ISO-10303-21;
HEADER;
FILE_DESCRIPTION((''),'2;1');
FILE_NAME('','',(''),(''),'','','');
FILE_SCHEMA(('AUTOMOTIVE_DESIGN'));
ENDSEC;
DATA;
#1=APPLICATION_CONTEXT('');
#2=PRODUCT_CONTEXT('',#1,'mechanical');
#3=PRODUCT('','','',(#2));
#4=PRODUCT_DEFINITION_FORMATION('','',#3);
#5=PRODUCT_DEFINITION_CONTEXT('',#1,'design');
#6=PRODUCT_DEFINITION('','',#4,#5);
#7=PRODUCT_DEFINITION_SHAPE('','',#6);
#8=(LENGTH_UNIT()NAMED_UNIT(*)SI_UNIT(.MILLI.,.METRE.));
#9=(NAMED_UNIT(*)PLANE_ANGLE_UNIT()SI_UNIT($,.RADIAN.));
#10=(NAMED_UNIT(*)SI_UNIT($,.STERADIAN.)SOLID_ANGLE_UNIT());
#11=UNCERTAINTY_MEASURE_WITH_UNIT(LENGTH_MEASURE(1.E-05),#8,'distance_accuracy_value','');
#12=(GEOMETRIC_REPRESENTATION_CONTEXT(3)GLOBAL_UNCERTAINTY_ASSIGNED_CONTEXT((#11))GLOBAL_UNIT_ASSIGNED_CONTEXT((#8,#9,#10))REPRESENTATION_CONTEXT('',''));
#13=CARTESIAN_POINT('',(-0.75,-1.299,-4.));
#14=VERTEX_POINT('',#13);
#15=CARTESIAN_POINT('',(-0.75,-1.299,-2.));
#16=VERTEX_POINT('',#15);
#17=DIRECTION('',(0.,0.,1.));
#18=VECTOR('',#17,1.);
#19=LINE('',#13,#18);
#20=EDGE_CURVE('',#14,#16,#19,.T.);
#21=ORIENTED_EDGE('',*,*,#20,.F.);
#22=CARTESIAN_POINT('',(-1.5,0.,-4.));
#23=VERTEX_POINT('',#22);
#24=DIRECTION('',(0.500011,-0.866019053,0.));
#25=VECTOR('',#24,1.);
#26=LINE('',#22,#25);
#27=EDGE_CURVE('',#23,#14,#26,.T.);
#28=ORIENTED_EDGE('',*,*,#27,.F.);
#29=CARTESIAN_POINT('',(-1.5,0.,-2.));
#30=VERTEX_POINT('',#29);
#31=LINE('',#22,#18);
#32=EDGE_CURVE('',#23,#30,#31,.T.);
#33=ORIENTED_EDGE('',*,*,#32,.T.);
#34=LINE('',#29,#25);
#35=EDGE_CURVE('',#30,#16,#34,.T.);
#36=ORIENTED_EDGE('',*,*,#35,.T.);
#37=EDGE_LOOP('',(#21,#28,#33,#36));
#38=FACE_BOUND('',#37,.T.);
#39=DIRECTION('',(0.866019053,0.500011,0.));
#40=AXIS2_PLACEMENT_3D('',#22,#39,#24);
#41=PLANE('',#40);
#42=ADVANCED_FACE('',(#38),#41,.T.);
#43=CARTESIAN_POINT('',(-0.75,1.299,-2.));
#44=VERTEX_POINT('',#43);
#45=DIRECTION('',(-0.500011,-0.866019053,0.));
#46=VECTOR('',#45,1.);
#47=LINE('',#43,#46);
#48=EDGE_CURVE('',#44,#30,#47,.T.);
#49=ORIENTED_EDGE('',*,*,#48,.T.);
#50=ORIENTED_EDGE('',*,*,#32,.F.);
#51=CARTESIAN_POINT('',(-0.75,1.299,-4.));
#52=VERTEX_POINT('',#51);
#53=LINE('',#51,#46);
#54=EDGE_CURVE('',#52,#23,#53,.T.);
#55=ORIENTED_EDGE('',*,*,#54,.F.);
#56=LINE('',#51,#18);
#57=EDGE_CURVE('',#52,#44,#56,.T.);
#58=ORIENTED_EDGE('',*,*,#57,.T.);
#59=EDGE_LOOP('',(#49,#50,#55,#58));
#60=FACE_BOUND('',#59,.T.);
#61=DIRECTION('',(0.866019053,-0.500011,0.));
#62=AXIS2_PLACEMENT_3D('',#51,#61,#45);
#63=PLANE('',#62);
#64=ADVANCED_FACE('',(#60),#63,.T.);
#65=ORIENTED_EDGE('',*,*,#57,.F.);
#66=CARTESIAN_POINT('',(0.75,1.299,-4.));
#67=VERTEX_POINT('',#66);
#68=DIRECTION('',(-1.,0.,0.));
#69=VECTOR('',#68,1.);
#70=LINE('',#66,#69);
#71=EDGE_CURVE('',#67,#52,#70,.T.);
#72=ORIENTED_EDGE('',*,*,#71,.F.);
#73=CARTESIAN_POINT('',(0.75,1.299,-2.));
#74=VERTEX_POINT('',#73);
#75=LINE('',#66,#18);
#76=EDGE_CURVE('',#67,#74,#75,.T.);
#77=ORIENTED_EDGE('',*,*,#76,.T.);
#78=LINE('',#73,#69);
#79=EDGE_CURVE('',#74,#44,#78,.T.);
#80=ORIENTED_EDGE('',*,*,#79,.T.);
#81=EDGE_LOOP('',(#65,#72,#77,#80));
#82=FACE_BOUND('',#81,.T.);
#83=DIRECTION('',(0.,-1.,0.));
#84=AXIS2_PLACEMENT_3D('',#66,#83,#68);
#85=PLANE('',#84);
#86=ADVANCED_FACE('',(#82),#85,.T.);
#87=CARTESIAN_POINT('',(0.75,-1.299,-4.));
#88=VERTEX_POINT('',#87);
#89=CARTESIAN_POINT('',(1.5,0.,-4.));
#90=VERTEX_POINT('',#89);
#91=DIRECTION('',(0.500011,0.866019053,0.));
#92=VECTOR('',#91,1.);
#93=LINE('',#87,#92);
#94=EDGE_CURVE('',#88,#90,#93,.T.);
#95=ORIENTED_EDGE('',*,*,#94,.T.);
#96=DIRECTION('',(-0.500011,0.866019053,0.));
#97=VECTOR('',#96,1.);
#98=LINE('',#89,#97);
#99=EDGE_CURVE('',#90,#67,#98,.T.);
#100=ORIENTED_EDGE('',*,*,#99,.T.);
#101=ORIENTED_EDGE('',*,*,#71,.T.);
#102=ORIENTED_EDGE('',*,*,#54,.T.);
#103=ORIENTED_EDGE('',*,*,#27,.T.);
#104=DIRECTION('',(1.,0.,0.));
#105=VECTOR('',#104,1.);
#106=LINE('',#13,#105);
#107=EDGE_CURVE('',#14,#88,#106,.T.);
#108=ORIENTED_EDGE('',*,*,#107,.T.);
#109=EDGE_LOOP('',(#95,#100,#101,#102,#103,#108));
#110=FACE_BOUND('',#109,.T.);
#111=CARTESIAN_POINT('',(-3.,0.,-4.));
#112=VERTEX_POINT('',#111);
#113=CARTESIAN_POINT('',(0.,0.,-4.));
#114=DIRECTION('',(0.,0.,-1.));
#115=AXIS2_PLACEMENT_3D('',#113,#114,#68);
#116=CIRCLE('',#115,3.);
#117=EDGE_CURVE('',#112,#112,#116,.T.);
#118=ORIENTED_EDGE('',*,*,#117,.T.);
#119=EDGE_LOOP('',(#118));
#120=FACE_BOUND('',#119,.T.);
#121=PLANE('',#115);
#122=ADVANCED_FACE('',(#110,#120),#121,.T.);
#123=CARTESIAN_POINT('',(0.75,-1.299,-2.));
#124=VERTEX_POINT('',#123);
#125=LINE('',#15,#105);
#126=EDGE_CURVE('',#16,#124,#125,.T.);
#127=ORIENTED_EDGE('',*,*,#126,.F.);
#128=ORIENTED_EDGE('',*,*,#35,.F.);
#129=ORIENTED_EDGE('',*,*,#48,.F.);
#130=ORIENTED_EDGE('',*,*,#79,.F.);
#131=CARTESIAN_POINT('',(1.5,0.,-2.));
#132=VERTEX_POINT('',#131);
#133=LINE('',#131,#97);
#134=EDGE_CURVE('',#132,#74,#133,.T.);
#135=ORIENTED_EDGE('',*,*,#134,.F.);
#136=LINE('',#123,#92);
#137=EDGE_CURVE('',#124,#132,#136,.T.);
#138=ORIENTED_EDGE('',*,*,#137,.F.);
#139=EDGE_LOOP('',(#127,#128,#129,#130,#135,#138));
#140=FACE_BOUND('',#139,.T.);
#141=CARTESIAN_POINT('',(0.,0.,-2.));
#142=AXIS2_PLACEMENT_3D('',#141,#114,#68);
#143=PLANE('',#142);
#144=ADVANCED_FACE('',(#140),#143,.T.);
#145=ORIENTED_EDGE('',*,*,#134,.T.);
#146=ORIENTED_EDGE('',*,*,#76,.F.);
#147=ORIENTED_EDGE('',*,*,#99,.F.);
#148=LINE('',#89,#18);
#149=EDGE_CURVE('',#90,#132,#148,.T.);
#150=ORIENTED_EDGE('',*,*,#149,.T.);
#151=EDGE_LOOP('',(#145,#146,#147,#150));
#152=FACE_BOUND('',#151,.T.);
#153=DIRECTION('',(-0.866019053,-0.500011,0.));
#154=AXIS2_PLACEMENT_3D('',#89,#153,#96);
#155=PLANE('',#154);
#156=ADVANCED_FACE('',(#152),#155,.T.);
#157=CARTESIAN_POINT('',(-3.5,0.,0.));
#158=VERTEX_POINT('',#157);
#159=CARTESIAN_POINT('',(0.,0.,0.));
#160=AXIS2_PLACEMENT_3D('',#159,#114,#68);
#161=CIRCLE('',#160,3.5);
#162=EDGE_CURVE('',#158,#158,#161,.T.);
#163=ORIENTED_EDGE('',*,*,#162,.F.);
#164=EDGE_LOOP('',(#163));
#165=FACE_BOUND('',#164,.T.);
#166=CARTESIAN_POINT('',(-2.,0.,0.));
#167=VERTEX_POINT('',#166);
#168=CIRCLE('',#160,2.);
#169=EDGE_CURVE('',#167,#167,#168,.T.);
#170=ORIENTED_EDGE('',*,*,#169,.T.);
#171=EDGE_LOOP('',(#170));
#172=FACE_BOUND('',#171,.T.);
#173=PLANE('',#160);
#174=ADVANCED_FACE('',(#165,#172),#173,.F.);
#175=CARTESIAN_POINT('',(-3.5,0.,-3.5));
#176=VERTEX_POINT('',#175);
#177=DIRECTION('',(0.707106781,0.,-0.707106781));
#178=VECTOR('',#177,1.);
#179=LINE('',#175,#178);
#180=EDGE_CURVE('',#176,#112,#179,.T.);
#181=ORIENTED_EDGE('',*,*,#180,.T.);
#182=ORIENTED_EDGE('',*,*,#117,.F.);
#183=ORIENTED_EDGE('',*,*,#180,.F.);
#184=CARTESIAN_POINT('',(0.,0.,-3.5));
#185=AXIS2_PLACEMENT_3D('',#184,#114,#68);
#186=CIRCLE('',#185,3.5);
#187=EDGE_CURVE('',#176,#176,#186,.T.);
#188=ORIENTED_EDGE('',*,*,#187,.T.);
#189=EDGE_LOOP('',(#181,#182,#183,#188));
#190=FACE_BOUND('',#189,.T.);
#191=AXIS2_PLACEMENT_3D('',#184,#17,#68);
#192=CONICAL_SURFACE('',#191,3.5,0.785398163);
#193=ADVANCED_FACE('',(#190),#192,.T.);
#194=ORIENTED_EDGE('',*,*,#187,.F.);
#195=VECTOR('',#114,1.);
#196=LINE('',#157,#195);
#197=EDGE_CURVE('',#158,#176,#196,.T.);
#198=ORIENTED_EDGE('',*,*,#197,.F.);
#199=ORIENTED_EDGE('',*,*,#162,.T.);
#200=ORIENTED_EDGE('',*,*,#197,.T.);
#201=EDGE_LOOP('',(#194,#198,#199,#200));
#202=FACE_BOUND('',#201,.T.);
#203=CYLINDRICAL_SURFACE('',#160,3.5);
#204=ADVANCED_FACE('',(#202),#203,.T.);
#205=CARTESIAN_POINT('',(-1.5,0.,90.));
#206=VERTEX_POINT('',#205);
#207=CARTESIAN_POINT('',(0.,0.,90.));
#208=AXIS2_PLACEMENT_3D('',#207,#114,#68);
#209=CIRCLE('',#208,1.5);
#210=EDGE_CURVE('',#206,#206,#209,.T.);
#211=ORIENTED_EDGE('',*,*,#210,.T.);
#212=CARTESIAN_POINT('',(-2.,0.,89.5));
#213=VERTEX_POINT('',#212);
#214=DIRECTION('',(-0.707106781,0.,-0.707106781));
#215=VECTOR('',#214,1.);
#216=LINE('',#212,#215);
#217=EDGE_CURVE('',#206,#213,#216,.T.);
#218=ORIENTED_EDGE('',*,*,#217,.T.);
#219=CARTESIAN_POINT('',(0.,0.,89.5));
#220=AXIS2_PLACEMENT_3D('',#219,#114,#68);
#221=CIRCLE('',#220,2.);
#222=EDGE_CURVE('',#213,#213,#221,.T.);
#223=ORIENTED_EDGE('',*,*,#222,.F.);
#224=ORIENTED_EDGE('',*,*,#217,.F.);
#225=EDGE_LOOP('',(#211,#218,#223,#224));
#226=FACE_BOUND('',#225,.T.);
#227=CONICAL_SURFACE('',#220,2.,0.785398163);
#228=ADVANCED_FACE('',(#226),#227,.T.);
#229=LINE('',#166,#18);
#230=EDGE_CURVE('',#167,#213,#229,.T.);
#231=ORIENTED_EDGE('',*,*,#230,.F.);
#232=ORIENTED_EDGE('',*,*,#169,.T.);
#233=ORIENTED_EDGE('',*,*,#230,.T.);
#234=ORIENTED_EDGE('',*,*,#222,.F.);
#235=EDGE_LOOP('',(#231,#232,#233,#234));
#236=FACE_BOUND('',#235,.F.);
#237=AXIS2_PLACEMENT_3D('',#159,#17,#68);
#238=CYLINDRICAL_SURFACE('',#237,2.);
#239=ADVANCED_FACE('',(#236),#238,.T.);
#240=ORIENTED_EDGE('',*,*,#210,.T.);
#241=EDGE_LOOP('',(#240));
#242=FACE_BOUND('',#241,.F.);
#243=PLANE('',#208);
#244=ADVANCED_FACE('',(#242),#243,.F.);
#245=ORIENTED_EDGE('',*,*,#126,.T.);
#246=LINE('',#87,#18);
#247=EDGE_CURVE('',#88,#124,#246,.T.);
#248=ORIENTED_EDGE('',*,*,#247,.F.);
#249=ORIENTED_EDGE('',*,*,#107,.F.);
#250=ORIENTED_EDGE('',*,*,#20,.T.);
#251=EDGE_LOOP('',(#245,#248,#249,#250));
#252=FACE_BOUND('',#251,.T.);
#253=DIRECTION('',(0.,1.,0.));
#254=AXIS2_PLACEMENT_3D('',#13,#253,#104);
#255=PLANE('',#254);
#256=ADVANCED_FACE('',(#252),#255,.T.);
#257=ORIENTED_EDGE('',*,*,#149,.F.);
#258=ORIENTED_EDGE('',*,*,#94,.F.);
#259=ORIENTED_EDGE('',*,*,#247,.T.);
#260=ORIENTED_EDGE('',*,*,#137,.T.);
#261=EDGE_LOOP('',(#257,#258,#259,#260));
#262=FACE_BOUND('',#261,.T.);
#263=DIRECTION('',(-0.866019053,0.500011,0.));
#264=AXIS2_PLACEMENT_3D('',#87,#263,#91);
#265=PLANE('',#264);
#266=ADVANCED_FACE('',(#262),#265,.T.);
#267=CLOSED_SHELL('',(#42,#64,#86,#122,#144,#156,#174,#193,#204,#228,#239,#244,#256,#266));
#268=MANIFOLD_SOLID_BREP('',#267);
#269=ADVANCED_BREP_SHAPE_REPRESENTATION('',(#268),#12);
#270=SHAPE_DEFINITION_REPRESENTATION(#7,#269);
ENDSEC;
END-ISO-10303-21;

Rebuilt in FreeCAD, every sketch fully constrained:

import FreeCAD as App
import Part
import Sketcher


def edges_at(feature, points):
    """Names of the edges that pass closest to the given points."""
    edges = feature.Shape.Edges
    near = lambda p: min(range(len(edges)), key=lambda i: edges[i].distToShape(Part.Vertex(*p))[0])
    return sorted({f"Edge{near(p) + 1}" for p in points})


def add_polygon(sketch, points):
    """Adds a closed chain of lines whose ends are joined by coincident constraints."""
    first, n = sketch.GeometryCount, len(points)
    for a, b in zip(points, points[1:] + points[:1]):
        sketch.addGeometry(Part.LineSegment(App.Vector(*a, 0), App.Vector(*b, 0)), False)
    for i in range(n):
        sketch.addConstraint(Sketcher.Constraint("Coincident", first + i, 2, first + (i + 1) % n, 1))

doc = App.newDocument("Part")
body = doc.addObject("PartDesign::Body", "Body")

# Sketch on XZ plane
sketch1 = body.newObject("Sketcher::SketchObject", "Sketch")
sketch1.AttachmentSupport = (doc.getObject("XZ_Plane"), [""])
sketch1.MapMode = "FlatFace"
add_polygon(sketch1, [(0, 90), (0, -4), (-3.5, -4), (-3.5, 0), (-2, 0), (-2, 90)])  # lines 0-5
sketch1.addConstraint([
    Sketcher.Constraint("Vertical", 0),
    Sketcher.Constraint("Horizontal", 1),
    Sketcher.Constraint("Vertical", 2),
    Sketcher.Constraint("Horizontal", 3),
    Sketcher.Constraint("Vertical", 4),
    Sketcher.Constraint("Horizontal", 5),
    Sketcher.Constraint("PointOnObject", 0, 2, -2),
    Sketcher.Constraint("PointOnObject", 2, 2, -1),
    Sketcher.Constraint("DistanceX", 5, 1, 5, 2, 2.0),
    Sketcher.Constraint("DistanceY", 2, 1, 2, 2, 4.0),
    Sketcher.Constraint("DistanceY", 4, 1, 4, 2, 90.0),
    Sketcher.Constraint("DistanceX", 1, 2, 1, 1, 3.5),
])
revolution = body.newObject("PartDesign::Revolution", "Revolution")
revolution.Profile = sketch1
revolution.ReferenceAxis = (sketch1, ["V_Axis"])
revolution.Angle = 360
doc.recompute()

chamfer = body.newObject("PartDesign::Chamfer", "Chamfer")
chamfer.Base = (revolution, edges_at(revolution, [(2, 0, 90), (3.5, 0, -4)]))
chamfer.Size = 0.5

# Sketch on XY plane
sketch2 = body.newObject("Sketcher::SketchObject", "Sketch001")
sketch2.AttachmentSupport = (doc.getObject("XY_Plane"), [""])
sketch2.MapMode = "FlatFace"
sketch2.AttachmentOffset = App.Placement(App.Vector(0, 0, -4), App.Rotation())
add_polygon(sketch2, [(-1.5, 0), (-0.8, 1.3), (0.8, 1.3), (1.5, 0), (0.8, -1.3), (-0.8, -1.3)])  # lines 0-5
sketch2.addConstraint([
    Sketcher.Constraint("Horizontal", 1),
    Sketcher.Constraint("Horizontal", 4),
    Sketcher.Constraint("Symmetric", 0, 2, 3, 2, -1, 1),
    Sketcher.Constraint("Symmetric", 2, 2, 5, 2, -1, 1),
    Sketcher.Constraint("PointOnObject", 2, 2, -1),
    Sketcher.Constraint("Parallel", 2, 5),
    Sketcher.Constraint("Vertical", 1, 2, 3, 2),
    Sketcher.Constraint("DistanceX", 1, 1, 1, 2, 1.5),
    Sketcher.Constraint("Distance", 0, 1.5),
    Sketcher.Constraint("DistanceX", -1, 1, 2, 2, 1.5),
])
pocket1 = body.newObject("PartDesign::Pocket", "Pocket")
pocket1.Profile = sketch2
pocket1.Length = 2
pocket1.Reversed = True

doc.recompute()
